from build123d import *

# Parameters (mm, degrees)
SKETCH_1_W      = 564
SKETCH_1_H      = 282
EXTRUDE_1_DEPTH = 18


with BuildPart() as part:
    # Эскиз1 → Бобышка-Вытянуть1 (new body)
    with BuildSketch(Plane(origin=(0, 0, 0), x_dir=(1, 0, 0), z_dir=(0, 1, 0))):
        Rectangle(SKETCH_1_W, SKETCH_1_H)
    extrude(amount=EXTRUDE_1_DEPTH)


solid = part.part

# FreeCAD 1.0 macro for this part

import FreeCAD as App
import Part
import Sketcher


def add_polygon(sketch, points):
    """Adds a closed chain of lines whose ends are joined by coincident constraints."""
    first, n = sketch.GeometryCount, len(points)
    for a, b in zip(points, points[1:] + points[:1]):
        sketch.addGeometry(Part.LineSegment(App.Vector(*a, 0), App.Vector(*b, 0)), False)
    for i in range(n):
        sketch.addConstraint(Sketcher.Constraint("Coincident", first + i, 2, first + (i + 1) % n, 1))

doc = App.newDocument("Part")
body = doc.addObject("PartDesign::Body", "Body")

# Sketch on XZ plane
sketch1 = body.newObject("Sketcher::SketchObject", "Sketch")
sketch1.AttachmentSupport = (doc.getObject("XZ_Plane"), [""])
sketch1.MapMode = "FlatFace"
add_polygon(sketch1, [(-282, -141), (-282, 141), (282, 141), (282, -141)])  # lines 0-3
sketch1.addConstraint(Sketcher.Constraint("Vertical", 0))
sketch1.addConstraint(Sketcher.Constraint("Horizontal", 1))
sketch1.addConstraint(Sketcher.Constraint("Vertical", 2))
sketch1.addConstraint(Sketcher.Constraint("Horizontal", 3))
sketch1.addConstraint(Sketcher.Constraint("Symmetric", 0, 2, 2, 2, -1, 1))
sketch1.addConstraint(Sketcher.Constraint("DistanceX", 1, 1, 1, 2, 564.0))
sketch1.addConstraint(Sketcher.Constraint("DistanceY", 0, 1, 0, 2, 282.0))
pad1 = body.newObject("PartDesign::Pad", "Pad")
pad1.Profile = sketch1
pad1.Length = 18
pad1.Reversed = True

doc.recompute()
